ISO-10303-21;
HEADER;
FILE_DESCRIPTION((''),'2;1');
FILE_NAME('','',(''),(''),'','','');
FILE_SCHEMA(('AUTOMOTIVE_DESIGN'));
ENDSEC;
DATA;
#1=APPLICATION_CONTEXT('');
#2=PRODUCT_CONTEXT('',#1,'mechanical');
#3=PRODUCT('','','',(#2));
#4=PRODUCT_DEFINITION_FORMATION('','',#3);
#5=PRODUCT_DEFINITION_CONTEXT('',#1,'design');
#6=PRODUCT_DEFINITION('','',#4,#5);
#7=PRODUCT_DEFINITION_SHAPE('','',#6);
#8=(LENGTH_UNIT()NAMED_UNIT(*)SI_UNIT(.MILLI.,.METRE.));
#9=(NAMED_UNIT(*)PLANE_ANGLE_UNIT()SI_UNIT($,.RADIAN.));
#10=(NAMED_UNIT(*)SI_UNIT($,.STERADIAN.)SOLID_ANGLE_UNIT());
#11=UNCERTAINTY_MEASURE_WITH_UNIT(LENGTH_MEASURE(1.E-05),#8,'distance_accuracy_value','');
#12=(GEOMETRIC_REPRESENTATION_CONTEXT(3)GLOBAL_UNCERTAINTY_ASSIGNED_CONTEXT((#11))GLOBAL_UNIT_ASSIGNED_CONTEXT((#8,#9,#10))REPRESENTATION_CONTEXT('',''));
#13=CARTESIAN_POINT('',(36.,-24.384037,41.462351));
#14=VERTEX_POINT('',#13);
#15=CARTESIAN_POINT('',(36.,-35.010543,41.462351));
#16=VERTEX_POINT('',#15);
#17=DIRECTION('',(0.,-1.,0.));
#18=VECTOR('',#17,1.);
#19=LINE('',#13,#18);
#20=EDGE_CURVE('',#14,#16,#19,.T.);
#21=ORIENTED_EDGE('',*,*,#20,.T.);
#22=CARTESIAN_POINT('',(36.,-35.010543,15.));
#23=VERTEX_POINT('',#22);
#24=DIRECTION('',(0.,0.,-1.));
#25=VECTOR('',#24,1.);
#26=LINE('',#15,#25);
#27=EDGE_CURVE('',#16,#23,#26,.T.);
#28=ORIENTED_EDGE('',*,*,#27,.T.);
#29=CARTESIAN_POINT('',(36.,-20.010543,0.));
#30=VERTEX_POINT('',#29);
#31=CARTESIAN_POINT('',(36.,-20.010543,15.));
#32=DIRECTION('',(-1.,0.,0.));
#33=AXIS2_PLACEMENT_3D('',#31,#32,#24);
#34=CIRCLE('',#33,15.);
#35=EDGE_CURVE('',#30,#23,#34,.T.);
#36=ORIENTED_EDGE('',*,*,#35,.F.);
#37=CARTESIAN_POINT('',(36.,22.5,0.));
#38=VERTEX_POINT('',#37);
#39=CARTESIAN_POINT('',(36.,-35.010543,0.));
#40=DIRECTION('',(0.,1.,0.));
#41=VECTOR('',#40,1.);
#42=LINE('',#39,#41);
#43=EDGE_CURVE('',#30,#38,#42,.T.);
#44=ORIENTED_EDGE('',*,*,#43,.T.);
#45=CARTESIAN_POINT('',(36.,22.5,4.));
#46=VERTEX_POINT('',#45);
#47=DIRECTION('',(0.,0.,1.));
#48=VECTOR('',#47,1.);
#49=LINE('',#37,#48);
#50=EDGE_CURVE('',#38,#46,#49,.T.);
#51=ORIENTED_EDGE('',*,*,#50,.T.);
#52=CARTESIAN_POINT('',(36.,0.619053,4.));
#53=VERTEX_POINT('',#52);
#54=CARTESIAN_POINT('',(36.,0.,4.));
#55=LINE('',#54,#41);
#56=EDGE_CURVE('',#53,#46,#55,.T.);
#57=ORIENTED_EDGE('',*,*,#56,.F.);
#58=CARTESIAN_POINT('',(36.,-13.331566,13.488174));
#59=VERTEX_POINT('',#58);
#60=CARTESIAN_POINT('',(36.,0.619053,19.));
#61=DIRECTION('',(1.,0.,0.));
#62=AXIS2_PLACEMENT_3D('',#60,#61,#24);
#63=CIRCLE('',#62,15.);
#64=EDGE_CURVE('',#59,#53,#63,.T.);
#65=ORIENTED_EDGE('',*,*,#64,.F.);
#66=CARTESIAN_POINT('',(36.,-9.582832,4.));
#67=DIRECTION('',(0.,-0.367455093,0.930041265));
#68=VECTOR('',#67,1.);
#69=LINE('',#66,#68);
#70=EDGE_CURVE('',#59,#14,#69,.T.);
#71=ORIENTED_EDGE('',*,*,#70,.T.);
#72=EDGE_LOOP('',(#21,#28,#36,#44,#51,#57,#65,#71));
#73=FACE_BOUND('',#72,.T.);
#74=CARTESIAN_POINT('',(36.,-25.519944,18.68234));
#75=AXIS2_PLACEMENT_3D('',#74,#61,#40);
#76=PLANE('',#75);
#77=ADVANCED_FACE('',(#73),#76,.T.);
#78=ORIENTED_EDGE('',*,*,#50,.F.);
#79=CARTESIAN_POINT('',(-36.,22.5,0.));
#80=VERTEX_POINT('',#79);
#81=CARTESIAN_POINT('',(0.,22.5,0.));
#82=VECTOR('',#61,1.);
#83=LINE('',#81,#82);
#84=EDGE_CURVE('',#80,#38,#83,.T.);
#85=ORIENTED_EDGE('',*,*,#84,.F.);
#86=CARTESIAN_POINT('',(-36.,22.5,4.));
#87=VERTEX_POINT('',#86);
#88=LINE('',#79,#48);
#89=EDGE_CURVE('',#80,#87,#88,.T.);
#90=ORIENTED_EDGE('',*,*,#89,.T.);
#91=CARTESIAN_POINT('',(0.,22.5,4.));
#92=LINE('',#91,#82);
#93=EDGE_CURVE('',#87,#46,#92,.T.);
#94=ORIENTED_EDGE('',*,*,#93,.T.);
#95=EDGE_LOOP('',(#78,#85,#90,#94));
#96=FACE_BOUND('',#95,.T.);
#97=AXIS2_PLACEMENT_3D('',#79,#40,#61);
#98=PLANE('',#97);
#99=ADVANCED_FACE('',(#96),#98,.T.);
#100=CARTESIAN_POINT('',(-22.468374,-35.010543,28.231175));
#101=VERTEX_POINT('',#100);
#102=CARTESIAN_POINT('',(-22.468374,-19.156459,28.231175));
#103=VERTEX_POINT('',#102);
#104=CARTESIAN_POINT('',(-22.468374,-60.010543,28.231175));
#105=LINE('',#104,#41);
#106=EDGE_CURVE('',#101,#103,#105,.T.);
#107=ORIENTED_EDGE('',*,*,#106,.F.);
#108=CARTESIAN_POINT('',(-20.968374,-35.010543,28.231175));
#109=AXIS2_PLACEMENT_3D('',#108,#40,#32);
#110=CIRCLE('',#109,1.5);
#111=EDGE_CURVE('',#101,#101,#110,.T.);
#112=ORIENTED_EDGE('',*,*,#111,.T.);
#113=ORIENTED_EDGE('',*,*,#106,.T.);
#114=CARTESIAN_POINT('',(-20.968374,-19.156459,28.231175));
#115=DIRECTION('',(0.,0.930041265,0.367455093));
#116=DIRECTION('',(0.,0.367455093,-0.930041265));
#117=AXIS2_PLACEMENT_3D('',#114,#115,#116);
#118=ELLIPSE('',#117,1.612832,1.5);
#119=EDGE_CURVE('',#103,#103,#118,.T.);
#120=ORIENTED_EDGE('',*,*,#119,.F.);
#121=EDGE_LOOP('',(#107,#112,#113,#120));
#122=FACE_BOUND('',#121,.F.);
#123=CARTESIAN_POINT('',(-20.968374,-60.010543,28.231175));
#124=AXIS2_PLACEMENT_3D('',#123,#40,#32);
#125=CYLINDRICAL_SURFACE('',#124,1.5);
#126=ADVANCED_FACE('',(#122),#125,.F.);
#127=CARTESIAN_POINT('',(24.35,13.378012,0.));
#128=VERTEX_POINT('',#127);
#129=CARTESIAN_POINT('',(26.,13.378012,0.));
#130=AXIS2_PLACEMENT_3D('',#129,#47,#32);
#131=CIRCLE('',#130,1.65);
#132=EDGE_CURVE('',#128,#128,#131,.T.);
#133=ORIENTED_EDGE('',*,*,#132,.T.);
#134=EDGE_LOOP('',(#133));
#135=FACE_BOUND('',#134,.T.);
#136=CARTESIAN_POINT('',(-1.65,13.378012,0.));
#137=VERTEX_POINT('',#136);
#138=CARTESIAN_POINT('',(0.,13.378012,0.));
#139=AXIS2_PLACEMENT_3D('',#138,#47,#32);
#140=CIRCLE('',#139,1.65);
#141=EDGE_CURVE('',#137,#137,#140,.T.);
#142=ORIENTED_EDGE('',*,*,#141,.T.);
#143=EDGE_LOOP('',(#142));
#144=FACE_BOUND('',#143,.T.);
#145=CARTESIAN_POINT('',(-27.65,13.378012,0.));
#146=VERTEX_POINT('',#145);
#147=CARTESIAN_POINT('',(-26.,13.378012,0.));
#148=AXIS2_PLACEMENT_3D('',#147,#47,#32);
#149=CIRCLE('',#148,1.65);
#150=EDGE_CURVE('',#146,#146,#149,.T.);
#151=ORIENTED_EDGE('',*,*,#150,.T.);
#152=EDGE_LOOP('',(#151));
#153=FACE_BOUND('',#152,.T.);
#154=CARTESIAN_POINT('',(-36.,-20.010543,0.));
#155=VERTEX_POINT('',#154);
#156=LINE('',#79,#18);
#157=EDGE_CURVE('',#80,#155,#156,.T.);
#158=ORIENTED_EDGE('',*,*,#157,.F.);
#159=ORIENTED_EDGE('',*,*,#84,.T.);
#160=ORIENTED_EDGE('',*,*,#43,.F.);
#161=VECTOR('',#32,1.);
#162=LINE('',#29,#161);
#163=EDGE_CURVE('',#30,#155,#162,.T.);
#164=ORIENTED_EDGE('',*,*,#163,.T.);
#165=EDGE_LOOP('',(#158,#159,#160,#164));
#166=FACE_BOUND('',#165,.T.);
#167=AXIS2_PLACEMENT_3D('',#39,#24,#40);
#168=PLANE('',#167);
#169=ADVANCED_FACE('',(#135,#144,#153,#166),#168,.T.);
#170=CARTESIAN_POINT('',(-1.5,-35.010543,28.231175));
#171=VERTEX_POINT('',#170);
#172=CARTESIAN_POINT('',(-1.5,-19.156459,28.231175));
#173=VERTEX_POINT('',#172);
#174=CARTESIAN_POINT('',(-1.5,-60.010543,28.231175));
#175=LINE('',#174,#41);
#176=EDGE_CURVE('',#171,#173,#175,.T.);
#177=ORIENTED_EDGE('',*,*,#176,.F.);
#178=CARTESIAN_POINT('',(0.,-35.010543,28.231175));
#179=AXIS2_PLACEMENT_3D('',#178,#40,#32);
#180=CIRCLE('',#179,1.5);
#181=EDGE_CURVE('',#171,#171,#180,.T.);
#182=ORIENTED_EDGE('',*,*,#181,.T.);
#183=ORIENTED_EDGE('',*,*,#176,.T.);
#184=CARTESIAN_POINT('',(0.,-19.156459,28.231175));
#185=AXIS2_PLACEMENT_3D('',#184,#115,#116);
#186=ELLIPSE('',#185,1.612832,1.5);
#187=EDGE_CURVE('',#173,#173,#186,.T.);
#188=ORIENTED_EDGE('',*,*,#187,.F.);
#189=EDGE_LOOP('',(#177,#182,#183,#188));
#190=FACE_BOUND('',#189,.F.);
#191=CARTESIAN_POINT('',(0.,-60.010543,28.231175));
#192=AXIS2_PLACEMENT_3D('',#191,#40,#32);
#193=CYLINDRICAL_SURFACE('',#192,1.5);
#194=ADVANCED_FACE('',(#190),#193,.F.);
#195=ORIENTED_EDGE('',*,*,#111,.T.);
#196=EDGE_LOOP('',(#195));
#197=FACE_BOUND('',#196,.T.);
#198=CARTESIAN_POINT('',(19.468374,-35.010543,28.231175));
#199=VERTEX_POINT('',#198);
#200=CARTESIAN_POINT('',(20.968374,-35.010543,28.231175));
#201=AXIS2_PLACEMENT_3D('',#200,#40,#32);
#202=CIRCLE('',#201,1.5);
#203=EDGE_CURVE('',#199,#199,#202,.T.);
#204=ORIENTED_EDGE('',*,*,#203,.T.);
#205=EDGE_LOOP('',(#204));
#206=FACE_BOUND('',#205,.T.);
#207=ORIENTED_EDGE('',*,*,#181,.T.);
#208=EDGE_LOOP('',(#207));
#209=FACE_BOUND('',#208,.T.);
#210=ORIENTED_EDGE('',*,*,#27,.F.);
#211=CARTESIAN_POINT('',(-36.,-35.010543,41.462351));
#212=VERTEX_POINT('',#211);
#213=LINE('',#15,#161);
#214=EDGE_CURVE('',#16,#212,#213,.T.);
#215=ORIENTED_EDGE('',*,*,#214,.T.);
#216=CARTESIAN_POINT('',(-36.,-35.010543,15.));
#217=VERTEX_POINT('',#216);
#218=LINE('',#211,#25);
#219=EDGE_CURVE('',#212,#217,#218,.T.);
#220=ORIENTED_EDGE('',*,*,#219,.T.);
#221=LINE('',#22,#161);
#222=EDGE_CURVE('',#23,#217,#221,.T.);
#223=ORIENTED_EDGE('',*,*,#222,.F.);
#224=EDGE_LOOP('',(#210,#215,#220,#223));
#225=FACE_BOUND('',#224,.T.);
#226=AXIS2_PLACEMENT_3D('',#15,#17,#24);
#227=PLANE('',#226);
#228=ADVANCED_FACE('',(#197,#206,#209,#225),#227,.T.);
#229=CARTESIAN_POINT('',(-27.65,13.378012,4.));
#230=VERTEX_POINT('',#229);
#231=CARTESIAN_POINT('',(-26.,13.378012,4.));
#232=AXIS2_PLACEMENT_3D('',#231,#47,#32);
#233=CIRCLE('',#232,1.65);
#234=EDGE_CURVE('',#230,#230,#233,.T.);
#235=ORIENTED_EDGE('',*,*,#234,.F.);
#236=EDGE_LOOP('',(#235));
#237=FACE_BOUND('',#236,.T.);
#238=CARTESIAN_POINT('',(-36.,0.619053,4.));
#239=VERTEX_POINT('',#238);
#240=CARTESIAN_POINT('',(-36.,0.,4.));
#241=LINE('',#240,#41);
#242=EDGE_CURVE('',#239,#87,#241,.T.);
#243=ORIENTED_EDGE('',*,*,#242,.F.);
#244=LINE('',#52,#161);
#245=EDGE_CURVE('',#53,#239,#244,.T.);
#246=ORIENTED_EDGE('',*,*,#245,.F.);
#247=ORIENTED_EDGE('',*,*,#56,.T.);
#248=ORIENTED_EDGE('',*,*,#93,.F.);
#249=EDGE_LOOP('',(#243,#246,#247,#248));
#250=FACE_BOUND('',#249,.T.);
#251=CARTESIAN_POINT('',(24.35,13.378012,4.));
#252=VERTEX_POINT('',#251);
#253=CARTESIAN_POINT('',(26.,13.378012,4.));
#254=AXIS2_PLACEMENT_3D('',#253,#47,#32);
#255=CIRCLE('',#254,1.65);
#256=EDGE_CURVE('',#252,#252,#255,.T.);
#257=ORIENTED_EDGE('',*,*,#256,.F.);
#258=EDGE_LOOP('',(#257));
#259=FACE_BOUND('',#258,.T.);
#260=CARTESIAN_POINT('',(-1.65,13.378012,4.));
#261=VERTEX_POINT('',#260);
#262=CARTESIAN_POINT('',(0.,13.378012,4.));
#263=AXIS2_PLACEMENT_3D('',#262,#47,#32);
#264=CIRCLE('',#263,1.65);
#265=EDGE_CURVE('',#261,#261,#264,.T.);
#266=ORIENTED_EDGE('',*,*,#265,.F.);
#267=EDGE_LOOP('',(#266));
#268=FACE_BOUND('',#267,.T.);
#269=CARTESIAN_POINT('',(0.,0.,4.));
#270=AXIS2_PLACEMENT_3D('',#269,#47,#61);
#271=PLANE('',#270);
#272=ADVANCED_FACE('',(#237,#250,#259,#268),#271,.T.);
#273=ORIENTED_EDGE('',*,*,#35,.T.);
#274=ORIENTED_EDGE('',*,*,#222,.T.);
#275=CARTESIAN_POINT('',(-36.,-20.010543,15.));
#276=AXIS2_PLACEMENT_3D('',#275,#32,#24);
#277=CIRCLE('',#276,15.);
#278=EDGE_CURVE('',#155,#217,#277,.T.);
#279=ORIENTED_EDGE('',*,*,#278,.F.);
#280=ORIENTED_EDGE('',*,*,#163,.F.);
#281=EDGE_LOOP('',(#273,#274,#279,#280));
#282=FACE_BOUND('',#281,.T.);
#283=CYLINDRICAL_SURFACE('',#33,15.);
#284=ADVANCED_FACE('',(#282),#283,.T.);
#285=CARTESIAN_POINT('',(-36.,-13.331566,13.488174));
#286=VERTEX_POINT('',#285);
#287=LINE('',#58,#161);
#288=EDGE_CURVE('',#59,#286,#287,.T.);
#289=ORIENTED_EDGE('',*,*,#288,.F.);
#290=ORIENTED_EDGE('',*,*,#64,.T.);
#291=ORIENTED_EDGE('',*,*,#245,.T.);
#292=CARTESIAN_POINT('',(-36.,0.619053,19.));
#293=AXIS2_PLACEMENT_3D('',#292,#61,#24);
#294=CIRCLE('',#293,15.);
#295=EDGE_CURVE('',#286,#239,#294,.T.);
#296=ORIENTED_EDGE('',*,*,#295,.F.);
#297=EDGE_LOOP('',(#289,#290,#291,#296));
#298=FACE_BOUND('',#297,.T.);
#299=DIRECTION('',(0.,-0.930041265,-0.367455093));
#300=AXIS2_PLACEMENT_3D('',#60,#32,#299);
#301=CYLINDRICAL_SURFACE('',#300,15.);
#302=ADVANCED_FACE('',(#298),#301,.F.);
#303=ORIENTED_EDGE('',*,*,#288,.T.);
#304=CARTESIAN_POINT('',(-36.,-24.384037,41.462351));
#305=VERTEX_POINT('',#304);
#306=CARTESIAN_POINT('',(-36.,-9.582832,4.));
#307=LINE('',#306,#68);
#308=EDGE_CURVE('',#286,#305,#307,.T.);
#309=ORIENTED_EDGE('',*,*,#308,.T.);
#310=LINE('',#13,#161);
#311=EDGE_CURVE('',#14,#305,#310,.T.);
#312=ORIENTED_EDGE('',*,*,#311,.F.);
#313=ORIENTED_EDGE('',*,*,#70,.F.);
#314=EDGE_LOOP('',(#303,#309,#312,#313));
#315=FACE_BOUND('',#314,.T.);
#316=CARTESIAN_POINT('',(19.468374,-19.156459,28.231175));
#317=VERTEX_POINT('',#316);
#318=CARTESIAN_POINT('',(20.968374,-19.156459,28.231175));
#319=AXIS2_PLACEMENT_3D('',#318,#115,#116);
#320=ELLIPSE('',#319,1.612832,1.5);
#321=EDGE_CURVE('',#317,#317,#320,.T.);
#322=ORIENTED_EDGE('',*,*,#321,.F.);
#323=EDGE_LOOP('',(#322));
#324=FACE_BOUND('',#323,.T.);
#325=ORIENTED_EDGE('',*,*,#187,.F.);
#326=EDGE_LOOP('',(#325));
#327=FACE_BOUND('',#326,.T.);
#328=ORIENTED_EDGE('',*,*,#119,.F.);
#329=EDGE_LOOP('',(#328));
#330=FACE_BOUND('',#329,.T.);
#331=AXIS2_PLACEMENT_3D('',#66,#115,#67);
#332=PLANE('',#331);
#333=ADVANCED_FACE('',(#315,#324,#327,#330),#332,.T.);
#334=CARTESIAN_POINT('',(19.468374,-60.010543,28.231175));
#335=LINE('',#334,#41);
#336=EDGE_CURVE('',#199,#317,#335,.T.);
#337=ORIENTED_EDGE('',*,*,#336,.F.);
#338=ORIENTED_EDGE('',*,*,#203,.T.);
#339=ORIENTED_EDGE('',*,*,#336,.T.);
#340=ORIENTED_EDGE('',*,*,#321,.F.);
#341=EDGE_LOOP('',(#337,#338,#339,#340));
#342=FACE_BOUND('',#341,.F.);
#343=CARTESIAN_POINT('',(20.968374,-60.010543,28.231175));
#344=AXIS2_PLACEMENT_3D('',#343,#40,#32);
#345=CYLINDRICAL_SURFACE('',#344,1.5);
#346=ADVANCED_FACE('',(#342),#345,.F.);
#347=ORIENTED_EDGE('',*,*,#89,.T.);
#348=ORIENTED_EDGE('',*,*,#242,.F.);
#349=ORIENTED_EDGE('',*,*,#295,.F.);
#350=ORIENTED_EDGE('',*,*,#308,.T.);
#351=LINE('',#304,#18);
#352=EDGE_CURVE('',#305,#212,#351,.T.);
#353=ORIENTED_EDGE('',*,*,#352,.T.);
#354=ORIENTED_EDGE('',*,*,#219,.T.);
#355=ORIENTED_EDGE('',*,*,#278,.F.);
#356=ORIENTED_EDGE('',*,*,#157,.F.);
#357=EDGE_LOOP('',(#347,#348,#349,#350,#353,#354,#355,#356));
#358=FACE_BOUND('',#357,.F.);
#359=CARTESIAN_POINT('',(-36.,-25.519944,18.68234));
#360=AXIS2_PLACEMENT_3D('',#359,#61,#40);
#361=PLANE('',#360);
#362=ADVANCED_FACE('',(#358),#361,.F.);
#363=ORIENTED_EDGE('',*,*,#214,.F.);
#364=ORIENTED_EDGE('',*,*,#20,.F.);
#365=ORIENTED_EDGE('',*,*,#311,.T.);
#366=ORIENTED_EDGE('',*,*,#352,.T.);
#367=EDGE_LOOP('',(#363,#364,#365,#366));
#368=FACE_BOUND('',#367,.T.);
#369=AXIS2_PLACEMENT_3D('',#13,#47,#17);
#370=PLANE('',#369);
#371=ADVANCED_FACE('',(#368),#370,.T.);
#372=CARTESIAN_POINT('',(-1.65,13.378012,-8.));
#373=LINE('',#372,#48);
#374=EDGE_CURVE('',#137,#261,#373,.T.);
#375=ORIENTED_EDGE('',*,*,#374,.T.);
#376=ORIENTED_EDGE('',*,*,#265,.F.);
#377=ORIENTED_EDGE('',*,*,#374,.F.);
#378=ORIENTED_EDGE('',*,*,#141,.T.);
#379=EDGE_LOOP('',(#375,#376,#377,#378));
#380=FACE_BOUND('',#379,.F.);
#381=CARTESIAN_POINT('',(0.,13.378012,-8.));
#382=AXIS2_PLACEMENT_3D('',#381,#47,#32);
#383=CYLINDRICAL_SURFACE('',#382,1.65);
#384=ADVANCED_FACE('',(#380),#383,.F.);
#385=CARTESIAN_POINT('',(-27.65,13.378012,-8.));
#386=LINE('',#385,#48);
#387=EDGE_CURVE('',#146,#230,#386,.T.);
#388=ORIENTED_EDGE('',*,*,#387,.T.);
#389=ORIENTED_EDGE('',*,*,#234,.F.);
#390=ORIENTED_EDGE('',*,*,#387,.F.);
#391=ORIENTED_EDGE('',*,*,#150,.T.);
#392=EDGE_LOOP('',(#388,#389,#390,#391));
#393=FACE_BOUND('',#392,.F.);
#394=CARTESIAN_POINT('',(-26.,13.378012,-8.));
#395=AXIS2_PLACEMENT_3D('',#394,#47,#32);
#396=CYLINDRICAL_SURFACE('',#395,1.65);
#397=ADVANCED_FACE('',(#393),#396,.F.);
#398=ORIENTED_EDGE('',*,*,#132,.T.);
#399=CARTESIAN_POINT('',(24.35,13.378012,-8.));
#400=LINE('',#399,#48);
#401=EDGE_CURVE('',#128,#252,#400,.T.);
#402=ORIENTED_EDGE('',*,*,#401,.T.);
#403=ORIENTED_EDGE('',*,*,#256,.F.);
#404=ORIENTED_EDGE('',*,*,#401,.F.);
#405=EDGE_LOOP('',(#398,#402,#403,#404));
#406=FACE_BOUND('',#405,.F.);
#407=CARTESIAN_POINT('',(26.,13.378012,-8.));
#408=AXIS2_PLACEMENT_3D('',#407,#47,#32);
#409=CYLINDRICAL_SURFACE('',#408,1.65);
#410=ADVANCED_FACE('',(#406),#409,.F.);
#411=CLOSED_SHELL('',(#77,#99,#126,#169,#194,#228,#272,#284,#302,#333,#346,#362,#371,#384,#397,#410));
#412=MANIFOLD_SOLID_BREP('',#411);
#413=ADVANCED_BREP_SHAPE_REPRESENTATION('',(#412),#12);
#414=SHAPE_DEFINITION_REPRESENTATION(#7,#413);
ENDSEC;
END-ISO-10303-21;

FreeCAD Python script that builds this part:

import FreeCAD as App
import Part
import Sketcher

V = App.Vector
Q = App.Units.Quantity


def edges_at(feature, points):
    """Names of the edges that pass closest to the given points."""
    edges = feature.Shape.Edges
    near = lambda p: min(range(len(edges)), key=lambda i: edges[i].distToShape(Part.Vertex(*p))[0])
    return sorted({f"Edge{near(p) + 1}" for p in points})

doc = App.newDocument("Part")
body = doc.addObject("PartDesign::Body", "Body")

# Sketch on XY plane
sketch1 = body.newObject("Sketcher::SketchObject", "Sketch")
sketch1.AttachmentSupport = (doc.getObject("XY_Plane"), [""])
sketch1.MapMode = "FlatFace"
sketch1.addGeometry([
    Part.LineSegment(V(-36, 22, 0), V(-36, -22, 0)),
    Part.LineSegment(V(-36, -22, 0), V(36, -22, 0)),
    Part.LineSegment(V(36, -22, 0), V(36, 22, 0)),
    Part.LineSegment(V(36, 22, 0), V(-36, 22, 0)),
], False)
sketch1.addConstraint([
    Sketcher.Constraint("Coincident", 0, 2, 1, 1),
    Sketcher.Constraint("Coincident", 1, 2, 2, 1),
    Sketcher.Constraint("Coincident", 2, 2, 3, 1),
    Sketcher.Constraint("Coincident", 3, 2, 0, 1),
    Sketcher.Constraint("Vertical", 0),
    Sketcher.Constraint("Horizontal", 1),
    Sketcher.Constraint("Vertical", 2),
    Sketcher.Constraint("Horizontal", 3),
    Sketcher.Constraint("Symmetric", 0, 2, 2, 2, -1, 1),
    Sketcher.Constraint("DistanceX", 1, 1, 1, 2, Q("72 mm")),
    Sketcher.Constraint("DistanceY", 0, 2, 0, 1, Q("45 mm")),
])
pad1 = body.newObject("PartDesign::Pad", "Pad")
pad1.Profile = sketch1
pad1.Length = 4

# Sketch on XY plane
sketch2 = body.newObject("Sketcher::SketchObject", "Sketch001")
sketch2.AttachmentSupport = (doc.getObject("XY_Plane"), [""])
sketch2.MapMode = "FlatFace"
sketch2.addGeometry([
    Part.Circle(V(-26, 13.4, 0), V(0, 0, 1), 1.6),
    Part.Circle(V(0, 13.4, 0), V(0, 0, 1), 1.6),
    Part.Circle(V(26, 13.4, 0), V(0, 0, 1), 1.6),
], False)
sketch2.addConstraint([
    Sketcher.Constraint("Equal", 0, 1),
    Sketcher.Constraint("Equal", 1, 2),
    Sketcher.Constraint("Symmetric", 0, 3, 2, 3, -2),
    Sketcher.Constraint("PointOnObject", 1, 3, -2),
    Sketcher.Constraint("Horizontal", 0, 3, 1, 3),
    Sketcher.Constraint("Diameter", 0, Q("3.3 mm")),
    Sketcher.Constraint("DistanceX", 0, 3, -1, 1, Q("26 mm")),
    Sketcher.Constraint("DistanceY", -1, 1, 0, 3, Q("13.378012 mm")),
])
doc.recompute()
hole = body.newObject("PartDesign::Hole", "Hole")
hole.Profile = sketch2
hole.ThreadType = "None"
hole.Diameter = 3.3
hole.DepthType = "Dimension"
hole.Depth = 8
hole.DrillPoint = "Angled"
hole.DrillPointAngle = 118
hole.Reversed = True

# Sketch on YZ plane
sketch3 = body.newObject("Sketcher::SketchObject", "Sketch002")
sketch3.AttachmentSupport = (doc.getObject("YZ_Plane"), [""])
sketch3.MapMode = "FlatFace"
sketch3.AttachmentOffset = App.Placement(V(0, 0, 36), App.Rotation())
sketch3.addGeometry([
    Part.LineSegment(V(-22.5, 4, 0), V(-9.6, 4, 0)),  # 0
    Part.LineSegment(V(-9.6, 4, 0), V(-24.4, 41.5, 0)),  # 1
    Part.LineSegment(V(-24.4, 41.5, 0), V(-35, 41.5, 0)),  # 2
    Part.LineSegment(V(-35, 41.5, 0), V(-35, 0, 0)),  # 3
    Part.LineSegment(V(-35, 0, 0), V(-22.5, 0, 0)),  # 4
    Part.LineSegment(V(-22.5, 0, 0), V(-22.5, 4, 0)),  # 5
], False)
sketch3.addConstraint([
    Sketcher.Constraint("Coincident", 0, 2, 1, 1),
    Sketcher.Constraint("Coincident", 1, 2, 2, 1),
    Sketcher.Constraint("Coincident", 2, 2, 3, 1),
    Sketcher.Constraint("Coincident", 3, 2, 4, 1),
    Sketcher.Constraint("Coincident", 4, 2, 5, 1),
    Sketcher.Constraint("Coincident", 5, 2, 0, 1),
    Sketcher.Constraint("Horizontal", 0),
    Sketcher.Constraint("Horizontal", 2),
    Sketcher.Constraint("Vertical", 3),
    Sketcher.Constraint("Horizontal", 4),
    Sketcher.Constraint("Vertical", 5),
    Sketcher.Constraint("PointOnObject", 3, 2, -1),
    Sketcher.Constraint("DistanceY", 5, 1, 5, 2, Q("4 mm")),
    Sketcher.Constraint("DistanceX", 4, 2, -1, 1, Q("22.5 mm")),
    Sketcher.Constraint("DistanceX", 0, 1, 0, 2, Q("12.917168 mm")),
    Sketcher.Constraint("DistanceY", 3, 2, 3, 1, Q("41.462351 mm")),
    Sketcher.Constraint("Distance", 1, Q("40.28031 mm")),
    Sketcher.Constraint("DistanceX", 2, 2, 2, 1, Q("10.626506 mm")),
])
pad2 = body.newObject("PartDesign::Pad", "Pad001")
pad2.Profile = sketch3
pad2.Length = 72
pad2.Reversed = True
doc.recompute()

fillet = body.newObject("PartDesign::Fillet", "Fillet")
fillet.Base = (pad2, edges_at(pad2, [(0, -35.011, 0), (0, -9.583, 4)]))
fillet.Radius = 15

# Sketch on XZ plane
sketch4 = body.newObject("Sketcher::SketchObject", "Sketch003")
sketch4.AttachmentSupport = (doc.getObject("XZ_Plane"), [""])
sketch4.MapMode = "FlatFace"
sketch4.AttachmentOffset = App.Placement(V(0, 0, 35.010543), App.Rotation())
sketch4.addGeometry([
    Part.Circle(V(-21, 28.2, 0), V(0, 0, 1), 1.5),
    Part.Circle(V(21, 28.2, 0), V(0, 0, 1), 1.5),
    Part.Circle(V(0, 28.2, 0), V(0, 0, 1), 1.5),
], False)
sketch4.addConstraint([
    Sketcher.Constraint("Equal", 0, 1),
    Sketcher.Constraint("Equal", 1, 2),
    Sketcher.Constraint("Symmetric", 0, 3, 1, 3, -2),
    Sketcher.Constraint("PointOnObject", 2, 3, -2),
    Sketcher.Constraint("Horizontal", 1, 3, 2, 3),
    Sketcher.Constraint("Diameter", 0, Q("3 mm")),
    Sketcher.Constraint("DistanceX", 0, 3, -1, 1, Q("20.968374 mm")),
    Sketcher.Constraint("DistanceY", -1, 1, 0, 3, Q("28.231175 mm")),
])
doc.recompute()
hole2 = body.newObject("PartDesign::Hole", "Hole001")
hole2.Profile = sketch4
hole2.ThreadType = "None"
hole2.Diameter = 3
hole2.DepthType = "Dimension"
hole2.Depth = 25
hole2.DrillPoint = "Angled"
hole2.DrillPointAngle = 118

doc.recompute()
